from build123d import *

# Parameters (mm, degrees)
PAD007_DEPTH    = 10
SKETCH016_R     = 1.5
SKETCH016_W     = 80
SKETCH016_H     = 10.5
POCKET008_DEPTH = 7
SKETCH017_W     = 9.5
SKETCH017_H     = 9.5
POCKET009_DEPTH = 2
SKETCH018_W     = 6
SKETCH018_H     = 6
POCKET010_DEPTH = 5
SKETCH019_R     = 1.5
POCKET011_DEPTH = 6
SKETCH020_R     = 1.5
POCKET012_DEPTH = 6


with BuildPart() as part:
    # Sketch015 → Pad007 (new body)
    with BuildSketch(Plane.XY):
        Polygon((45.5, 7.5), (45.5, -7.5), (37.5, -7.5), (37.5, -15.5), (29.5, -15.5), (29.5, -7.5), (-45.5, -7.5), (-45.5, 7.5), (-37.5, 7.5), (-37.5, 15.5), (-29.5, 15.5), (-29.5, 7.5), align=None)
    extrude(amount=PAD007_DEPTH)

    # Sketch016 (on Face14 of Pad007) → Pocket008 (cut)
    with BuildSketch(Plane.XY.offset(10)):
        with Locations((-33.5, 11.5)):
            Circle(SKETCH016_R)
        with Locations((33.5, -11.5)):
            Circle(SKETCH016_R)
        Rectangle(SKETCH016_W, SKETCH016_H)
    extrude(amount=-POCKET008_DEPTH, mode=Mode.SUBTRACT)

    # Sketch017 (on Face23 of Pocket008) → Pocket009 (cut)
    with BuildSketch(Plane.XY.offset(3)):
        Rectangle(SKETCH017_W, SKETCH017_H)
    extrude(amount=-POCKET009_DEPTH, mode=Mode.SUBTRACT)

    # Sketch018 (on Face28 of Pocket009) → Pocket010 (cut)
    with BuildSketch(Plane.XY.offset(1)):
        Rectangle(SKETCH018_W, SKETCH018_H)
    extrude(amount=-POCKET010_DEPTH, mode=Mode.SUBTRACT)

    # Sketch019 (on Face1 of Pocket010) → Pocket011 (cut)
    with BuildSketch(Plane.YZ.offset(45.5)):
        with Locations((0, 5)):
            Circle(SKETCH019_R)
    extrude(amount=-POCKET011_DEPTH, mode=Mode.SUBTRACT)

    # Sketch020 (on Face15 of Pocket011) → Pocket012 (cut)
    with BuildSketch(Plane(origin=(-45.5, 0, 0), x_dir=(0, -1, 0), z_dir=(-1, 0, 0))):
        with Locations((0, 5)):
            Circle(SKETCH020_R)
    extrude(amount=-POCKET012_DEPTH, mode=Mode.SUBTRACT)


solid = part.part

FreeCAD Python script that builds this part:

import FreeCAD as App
import Part
import Sketcher

V = App.Vector

doc = App.newDocument("Part")
body = doc.addObject("PartDesign::Body", "Body")

# Sketch on XY plane
sketch1 = body.newObject("Sketcher::SketchObject", "Sketch")
sketch1.AttachmentSupport = (doc.getObject("XY_Plane"), [""])
sketch1.MapMode = "FlatFace"
sketch1.addGeometry([
    Part.LineSegment(V(46, -8, 0), V(46, 8, 0)),  # 0
    Part.LineSegment(V(46, 8, 0), V(-30, 8, 0)),  # 1
    Part.LineSegment(V(-30, 8, 0), V(-30, 16, 0)),  # 2
    Part.LineSegment(V(-30, 16, 0), V(-38, 16, 0)),  # 3
    Part.LineSegment(V(-38, 16, 0), V(-38, 8, 0)),  # 4
    Part.LineSegment(V(-38, 8, 0), V(-46, 8, 0)),  # 5
    Part.LineSegment(V(-46, 8, 0), V(-46, -8, 0)),  # 6
    Part.LineSegment(V(-46, -8, 0), V(30, -8, 0)),  # 7
    Part.LineSegment(V(30, -8, 0), V(30, -16, 0)),  # 8
    Part.LineSegment(V(30, -16, 0), V(38, -16, 0)),  # 9
    Part.LineSegment(V(38, -16, 0), V(38, -8, 0)),  # 10
    Part.LineSegment(V(38, -8, 0), V(46, -8, 0)),  # 11
], False)
sketch1.addConstraint([
    Sketcher.Constraint("Coincident", 0, 2, 1, 1),
    Sketcher.Constraint("Coincident", 1, 2, 2, 1),
    Sketcher.Constraint("Coincident", 2, 2, 3, 1),
    Sketcher.Constraint("Coincident", 3, 2, 4, 1),
    Sketcher.Constraint("Coincident", 4, 2, 5, 1),
    Sketcher.Constraint("Coincident", 5, 2, 6, 1),
    Sketcher.Constraint("Coincident", 6, 2, 7, 1),
    Sketcher.Constraint("Coincident", 7, 2, 8, 1),
    Sketcher.Constraint("Coincident", 8, 2, 9, 1),
    Sketcher.Constraint("Coincident", 9, 2, 10, 1),
    Sketcher.Constraint("Coincident", 10, 2, 11, 1),
    Sketcher.Constraint("Coincident", 11, 2, 0, 1),
    Sketcher.Constraint("Vertical", 0),
    Sketcher.Constraint("Horizontal", 1),
    Sketcher.Constraint("Vertical", 2),
    Sketcher.Constraint("Horizontal", 3),
    Sketcher.Constraint("Vertical", 4),
    Sketcher.Constraint("Horizontal", 5),
    Sketcher.Constraint("Vertical", 6),
    Sketcher.Constraint("Horizontal", 7),
    Sketcher.Constraint("Vertical", 8),
    Sketcher.Constraint("Horizontal", 9),
    Sketcher.Constraint("Vertical", 10),
    Sketcher.Constraint("Horizontal", 11),
    Sketcher.Constraint("Symmetric", 0, 2, 6, 2, -1, 1),
    Sketcher.Constraint("Symmetric", 2, 2, 8, 2, -1, 1),
    Sketcher.Constraint("Symmetric", 4, 2, 10, 2, -1, 1),
    Sketcher.Constraint("Horizontal", 1, 2, 4, 2),
    Sketcher.Constraint("Equal", 3, 5),
    Sketcher.Constraint("Equal", 11, 2),
    Sketcher.Constraint("DistanceX", 1, 2, 1, 1, 75.0),
    Sketcher.Constraint("DistanceX", 3, 2, 3, 1, 8.0),
    Sketcher.Constraint("DistanceY", 0, 1, 0, 2, 15.0),
])
pad1 = body.newObject("PartDesign::Pad", "Pad")
pad1.Profile = sketch1
pad1.Length = 10

# Sketch on XY plane
sketch2 = body.newObject("Sketcher::SketchObject", "Sketch001")
sketch2.AttachmentSupport = (doc.getObject("XY_Plane"), [""])
sketch2.MapMode = "FlatFace"
sketch2.AttachmentOffset = App.Placement(V(0, 0, 10), App.Rotation())
sketch2.addGeometry([
    Part.Circle(V(-33.5, 11.5, 0), V(0, 0, 1), 1.5),  # 0
    Part.Circle(V(33.5, -11.5, 0), V(0, 0, 1), 1.5),  # 1
    Part.LineSegment(V(-40, 5.2, 0), V(-40, -5.2, 0)),  # 2
    Part.LineSegment(V(-40, -5.2, 0), V(40, -5.2, 0)),  # 3
    Part.LineSegment(V(40, -5.2, 0), V(40, 5.2, 0)),  # 4
    Part.LineSegment(V(40, 5.2, 0), V(-40, 5.2, 0)),  # 5
], False)
sketch2.addConstraint([
    Sketcher.Constraint("Coincident", 2, 2, 3, 1),
    Sketcher.Constraint("Coincident", 3, 2, 4, 1),
    Sketcher.Constraint("Coincident", 4, 2, 5, 1),
    Sketcher.Constraint("Coincident", 5, 2, 2, 1),
    Sketcher.Constraint("Vertical", 2),
    Sketcher.Constraint("Horizontal", 3),
    Sketcher.Constraint("Vertical", 4),
    Sketcher.Constraint("Horizontal", 5),
    Sketcher.Constraint("Equal", 0, 1),
    Sketcher.Constraint("Symmetric", 0, 3, 1, 3, -1, 1),
    Sketcher.Constraint("Symmetric", 2, 2, 4, 2, -1, 1),
    Sketcher.Constraint("Diameter", 0, 3.0),
    Sketcher.Constraint("DistanceX", 3, 1, 3, 2, 80.0),
    Sketcher.Constraint("DistanceY", 2, 2, 2, 1, 10.5),
    Sketcher.Constraint("DistanceX", 0, 3, 1, 3, 67.0),
    Sketcher.Constraint("DistanceY", 1, 3, 0, 3, 23.0),
])
pocket1 = body.newObject("PartDesign::Pocket", "Pocket")
pocket1.Profile = sketch2
pocket1.Length = 7

# Sketch on XY plane
sketch3 = body.newObject("Sketcher::SketchObject", "Sketch002")
sketch3.AttachmentSupport = (doc.getObject("XY_Plane"), [""])
sketch3.MapMode = "FlatFace"
sketch3.AttachmentOffset = App.Placement(V(0, 0, 3), App.Rotation())
sketch3.addGeometry([
    Part.LineSegment(V(-5, 5, 0), V(-5, -5, 0)),
    Part.LineSegment(V(-5, -5, 0), V(5, -5, 0)),
    Part.LineSegment(V(5, -5, 0), V(5, 5, 0)),
    Part.LineSegment(V(5, 5, 0), V(-5, 5, 0)),
], False)
sketch3.addConstraint([
    Sketcher.Constraint("Coincident", 0, 2, 1, 1),
    Sketcher.Constraint("Coincident", 1, 2, 2, 1),
    Sketcher.Constraint("Coincident", 2, 2, 3, 1),
    Sketcher.Constraint("Coincident", 3, 2, 0, 1),
    Sketcher.Constraint("Vertical", 0),
    Sketcher.Constraint("Horizontal", 1),
    Sketcher.Constraint("Vertical", 2),
    Sketcher.Constraint("Horizontal", 3),
    Sketcher.Constraint("Symmetric", 0, 2, 2, 2, -1, 1),
    Sketcher.Constraint("Equal", 3, 0),
    Sketcher.Constraint("DistanceX", 1, 1, 1, 2, 9.5),
])
pocket2 = body.newObject("PartDesign::Pocket", "Pocket001")
pocket2.Profile = sketch3
pocket2.Length = 2

# Sketch on XY plane
sketch4 = body.newObject("Sketcher::SketchObject", "Sketch003")
sketch4.AttachmentSupport = (doc.getObject("XY_Plane"), [""])
sketch4.MapMode = "FlatFace"
sketch4.AttachmentOffset = App.Placement(V(0, 0, 1), App.Rotation())
sketch4.addGeometry([
    Part.LineSegment(V(-3, 3, 0), V(-3, -3, 0)),
    Part.LineSegment(V(-3, -3, 0), V(3, -3, 0)),
    Part.LineSegment(V(3, -3, 0), V(3, 3, 0)),
    Part.LineSegment(V(3, 3, 0), V(-3, 3, 0)),
], False)
sketch4.addConstraint([
    Sketcher.Constraint("Coincident", 0, 2, 1, 1),
    Sketcher.Constraint("Coincident", 1, 2, 2, 1),
    Sketcher.Constraint("Coincident", 2, 2, 3, 1),
    Sketcher.Constraint("Coincident", 3, 2, 0, 1),
    Sketcher.Constraint("Vertical", 0),
    Sketcher.Constraint("Horizontal", 1),
    Sketcher.Constraint("Vertical", 2),
    Sketcher.Constraint("Horizontal", 3),
    Sketcher.Constraint("Symmetric", 0, 2, 2, 2, -1, 1),
    Sketcher.Constraint("Equal", 3, 0),
    Sketcher.Constraint("DistanceX", 1, 1, 1, 2, 6.0),
])
pocket3 = body.newObject("PartDesign::Pocket", "Pocket002")
pocket3.Profile = sketch4
pocket3.Length = 5

# Sketch on YZ plane
sketch5 = body.newObject("Sketcher::SketchObject", "Sketch004")
sketch5.AttachmentSupport = (doc.getObject("YZ_Plane"), [""])
sketch5.MapMode = "FlatFace"
sketch5.AttachmentOffset = App.Placement(V(0, 0, 45.5), App.Rotation())
sketch5.addGeometry(Part.Circle(V(0, 5, 0), V(0, 0, 1), 1.5), False)
sketch5.addConstraint([
    Sketcher.Constraint("PointOnObject", 0, 3, -2),
    Sketcher.Constraint("Diameter", 0, 3.0),
    Sketcher.Constraint("DistanceY", -1, 1, 0, 3, 5.0),
])
pocket4 = body.newObject("PartDesign::Pocket", "Pocket003")
pocket4.Profile = sketch5
pocket4.Length = 6

# Sketch on YZ plane
sketch6 = body.newObject("Sketcher::SketchObject", "Sketch005")
sketch6.AttachmentSupport = (doc.getObject("YZ_Plane"), [""])
sketch6.MapMode = "FlatFace"
sketch6.AttachmentOffset = App.Placement(V(0, 0, -45.5), App.Rotation())
sketch6.addGeometry(Part.Circle(V(0, 5, 0), V(0, 0, 1), 1.5), False)
sketch6.addConstraint([
    Sketcher.Constraint("PointOnObject", 0, 3, -2),
    Sketcher.Constraint("Diameter", 0, 3.0),
    Sketcher.Constraint("DistanceY", -1, 1, 0, 3, 5.0),
])
pocket5 = body.newObject("PartDesign::Pocket", "Pocket004")
pocket5.Profile = sketch6
pocket5.Length = 6
pocket5.Reversed = True

doc.recompute()
